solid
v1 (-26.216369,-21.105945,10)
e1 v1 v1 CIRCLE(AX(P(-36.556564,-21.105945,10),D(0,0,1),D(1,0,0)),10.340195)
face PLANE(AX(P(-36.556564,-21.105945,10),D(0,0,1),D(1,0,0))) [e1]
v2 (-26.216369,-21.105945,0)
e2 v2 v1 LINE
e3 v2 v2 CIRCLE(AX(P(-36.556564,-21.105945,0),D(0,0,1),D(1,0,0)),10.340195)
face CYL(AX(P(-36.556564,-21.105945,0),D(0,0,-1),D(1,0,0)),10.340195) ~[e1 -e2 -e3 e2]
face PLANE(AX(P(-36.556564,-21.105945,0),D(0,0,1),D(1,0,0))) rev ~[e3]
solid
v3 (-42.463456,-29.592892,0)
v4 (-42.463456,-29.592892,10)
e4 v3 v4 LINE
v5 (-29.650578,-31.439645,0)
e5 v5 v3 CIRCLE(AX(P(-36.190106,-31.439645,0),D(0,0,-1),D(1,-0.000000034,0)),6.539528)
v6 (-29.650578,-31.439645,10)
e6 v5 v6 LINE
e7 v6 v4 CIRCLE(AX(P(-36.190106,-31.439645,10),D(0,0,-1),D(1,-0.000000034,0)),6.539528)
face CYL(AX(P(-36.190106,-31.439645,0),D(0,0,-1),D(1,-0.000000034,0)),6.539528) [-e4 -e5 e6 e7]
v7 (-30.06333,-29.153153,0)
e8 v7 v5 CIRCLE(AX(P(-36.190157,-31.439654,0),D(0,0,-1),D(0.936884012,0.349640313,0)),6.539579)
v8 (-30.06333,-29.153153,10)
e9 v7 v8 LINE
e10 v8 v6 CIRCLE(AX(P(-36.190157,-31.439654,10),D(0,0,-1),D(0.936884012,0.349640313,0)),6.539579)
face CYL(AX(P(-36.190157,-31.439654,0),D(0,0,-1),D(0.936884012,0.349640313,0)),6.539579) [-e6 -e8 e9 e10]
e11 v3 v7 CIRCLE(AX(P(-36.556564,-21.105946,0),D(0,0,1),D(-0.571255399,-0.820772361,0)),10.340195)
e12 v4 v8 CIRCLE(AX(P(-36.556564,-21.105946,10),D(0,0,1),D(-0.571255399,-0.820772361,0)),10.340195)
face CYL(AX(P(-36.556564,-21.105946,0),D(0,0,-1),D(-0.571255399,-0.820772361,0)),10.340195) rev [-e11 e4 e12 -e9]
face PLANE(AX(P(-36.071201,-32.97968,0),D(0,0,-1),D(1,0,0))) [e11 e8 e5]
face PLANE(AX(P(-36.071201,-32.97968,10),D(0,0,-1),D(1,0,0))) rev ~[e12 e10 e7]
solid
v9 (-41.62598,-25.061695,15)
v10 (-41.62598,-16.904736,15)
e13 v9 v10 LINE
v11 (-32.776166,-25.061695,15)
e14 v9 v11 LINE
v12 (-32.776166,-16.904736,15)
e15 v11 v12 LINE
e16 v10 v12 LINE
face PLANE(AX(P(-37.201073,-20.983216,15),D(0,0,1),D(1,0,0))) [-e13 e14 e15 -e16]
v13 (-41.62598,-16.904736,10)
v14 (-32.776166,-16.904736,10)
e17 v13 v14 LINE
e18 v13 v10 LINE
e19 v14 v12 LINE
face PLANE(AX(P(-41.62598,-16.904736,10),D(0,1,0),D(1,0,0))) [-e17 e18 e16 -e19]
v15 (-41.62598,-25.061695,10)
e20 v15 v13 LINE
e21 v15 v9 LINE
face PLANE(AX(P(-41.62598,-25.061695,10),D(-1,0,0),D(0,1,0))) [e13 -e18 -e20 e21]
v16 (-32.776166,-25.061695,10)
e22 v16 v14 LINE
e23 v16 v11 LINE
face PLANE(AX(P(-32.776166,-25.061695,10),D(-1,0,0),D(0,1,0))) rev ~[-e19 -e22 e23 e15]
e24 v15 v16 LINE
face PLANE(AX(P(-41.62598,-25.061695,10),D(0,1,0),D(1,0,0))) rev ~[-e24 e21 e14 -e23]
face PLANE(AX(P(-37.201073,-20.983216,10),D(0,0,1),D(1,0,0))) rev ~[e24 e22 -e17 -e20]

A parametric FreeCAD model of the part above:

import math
import FreeCAD as App
import Part
import Sketcher

V = App.Vector
Q = App.Units.Quantity

doc = App.newDocument("Part")
params = doc.addObject("Spreadsheet::Sheet", "Params")
for row, (alias, value) in enumerate([
    ("pad1_length", "10 mm"),
    ("pad2_length", "5 mm"),
    ("pad3_length", "10 mm"),
], start=1):
    params.set(f"A{row}", alias)
    params.set(f"B{row}", "=" + value)
    params.setAlias(f"B{row}", alias)

body = doc.addObject("PartDesign::Body", "Body")

# Sketch on XY plane
sketch1 = body.newObject("Sketcher::SketchObject", "Sketch")
sketch1.AttachmentSupport = (doc.getObject("XY_Plane"), [""])
sketch1.MapMode = "FlatFace"
sketch1.addGeometry(Part.Circle(V(-36.556564, -21.105945, 0), V(0, 0, 1), 10.340195), False)
sketch1.addConstraint(Sketcher.Constraint("Diameter", 0, Q("20.68039 mm")))
sketch1.addConstraint(Sketcher.Constraint("DistanceX", 0, 3, -1, 1, Q("36.556564 mm")))
sketch1.addConstraint(Sketcher.Constraint("DistanceY", 0, 3, -1, 1, Q("21.105945 mm")))
pad1 = body.newObject("PartDesign::Pad", "Pad")
pad1.Profile = sketch1
pad1.setExpression("Length", "Params.pad1_length")
body2 = doc.addObject("PartDesign::Body", "Body001")

# Sketch on XY plane
sketch2 = body2.newObject("Sketcher::SketchObject", "Sketch001")
sketch2.AttachmentSupport = (doc.getObject("XY_Plane001"), [""])
sketch2.MapMode = "FlatFace"
sketch2.AttachmentOffset = App.Placement(V(0, 0, 10), App.Rotation())
sketch2.addGeometry(Part.LineSegment(V(-41.62598, -16.904736, 0), V(-41.62598, -25.061695, 0)), False)
sketch2.addGeometry(Part.LineSegment(V(-41.62598, -25.061695, 0), V(-32.776166, -25.061695, 0)), False)
sketch2.addGeometry(Part.LineSegment(V(-32.776166, -25.061695, 0), V(-32.776166, -16.904736, 0)), False)
sketch2.addGeometry(Part.LineSegment(V(-32.776166, -16.904736, 0), V(-41.62598, -16.904736, 0)), False)
sketch2.addConstraint(Sketcher.Constraint("Coincident", 0, 2, 1, 1))
sketch2.addConstraint(Sketcher.Constraint("Coincident", 1, 2, 2, 1))
sketch2.addConstraint(Sketcher.Constraint("Coincident", 2, 2, 3, 1))
sketch2.addConstraint(Sketcher.Constraint("Coincident", 3, 2, 0, 1))
sketch2.addConstraint(Sketcher.Constraint("Vertical", 0))
sketch2.addConstraint(Sketcher.Constraint("Horizontal", 1))
sketch2.addConstraint(Sketcher.Constraint("Vertical", 2))
sketch2.addConstraint(Sketcher.Constraint("Horizontal", 3))
sketch2.addConstraint(Sketcher.Constraint("DistanceY", 0, 2, 0, 1, Q("8.156959 mm")))
sketch2.addConstraint(Sketcher.Constraint("DistanceX", 1, 1, 1, 2, Q("8.849814 mm")))
sketch2.addConstraint(Sketcher.Constraint("DistanceX", 0, 2, -1, 1, Q("41.62598 mm")))
sketch2.addConstraint(Sketcher.Constraint("DistanceY", 0, 2, -1, 1, Q("25.061695 mm")))
pad2 = body2.newObject("PartDesign::Pad", "Pad001")
pad2.Profile = sketch2
pad2.setExpression("Length", "Params.pad2_length")
body3 = doc.addObject("PartDesign::Body", "Body002")

# Sketch on XY plane
sketch3 = body3.newObject("Sketcher::SketchObject", "Sketch002")
sketch3.AttachmentSupport = (doc.getObject("XY_Plane002"), [""])
sketch3.MapMode = "FlatFace"
sketch3.addGeometry(Part.ArcOfCircle(Part.Circle(V(-36.190157, -31.439654, 0), V(0, 0, 1), 6.539579), math.radians(0.000074), math.radians(20.465317)), False)
sketch3.addGeometry(Part.ArcOfCircle(Part.Circle(V(-36.190106, -31.439645, 0), V(0, 0, 1), 6.539528), math.radians(163.596593), math.radians(359.999998)), False)
sketch3.addGeometry(Part.ArcOfCircle(Part.Circle(V(-36.556564, -21.105946, 0), V(0, 0, 1), 10.340195), math.radians(-124.837815), math.radians(-51.100188)), False)
sketch3.addConstraint(Sketcher.Constraint("Tangent", 0, 1, 1, 2))
sketch3.addConstraint(Sketcher.Constraint("Coincident", 1, 1, 2, 1))
sketch3.addConstraint(Sketcher.Constraint("Coincident", 2, 2, 0, 2))
sketch3.addConstraint(Sketcher.Constraint("Horizontal", 1, 3, 0, 1))
sketch3.addConstraint(Sketcher.Constraint("Radius", 0, Q("6.539579 mm")))
sketch3.addConstraint(Sketcher.Constraint("Radius", 1, Q("6.539528 mm")))
sketch3.addConstraint(Sketcher.Constraint("Radius", 2, Q("10.340195 mm")))
sketch3.addConstraint(Sketcher.Constraint("DistanceY", 1, 3, 2, 3, Q("10.333699 mm")))
sketch3.addConstraint(Sketcher.Constraint("DistanceX", 1, 1, 0, 3, Q("6.273299 mm")))
sketch3.addConstraint(Sketcher.Constraint("DistanceX", 0, 1, -1, 1, Q("29.650578 mm")))
sketch3.addConstraint(Sketcher.Constraint("DistanceY", 0, 3, -1, 1, Q("31.439654 mm")))
pad3 = body3.newObject("PartDesign::Pad", "Pad002")
pad3.Profile = sketch3
pad3.setExpression("Length", "Params.pad3_length")

doc.recompute()
